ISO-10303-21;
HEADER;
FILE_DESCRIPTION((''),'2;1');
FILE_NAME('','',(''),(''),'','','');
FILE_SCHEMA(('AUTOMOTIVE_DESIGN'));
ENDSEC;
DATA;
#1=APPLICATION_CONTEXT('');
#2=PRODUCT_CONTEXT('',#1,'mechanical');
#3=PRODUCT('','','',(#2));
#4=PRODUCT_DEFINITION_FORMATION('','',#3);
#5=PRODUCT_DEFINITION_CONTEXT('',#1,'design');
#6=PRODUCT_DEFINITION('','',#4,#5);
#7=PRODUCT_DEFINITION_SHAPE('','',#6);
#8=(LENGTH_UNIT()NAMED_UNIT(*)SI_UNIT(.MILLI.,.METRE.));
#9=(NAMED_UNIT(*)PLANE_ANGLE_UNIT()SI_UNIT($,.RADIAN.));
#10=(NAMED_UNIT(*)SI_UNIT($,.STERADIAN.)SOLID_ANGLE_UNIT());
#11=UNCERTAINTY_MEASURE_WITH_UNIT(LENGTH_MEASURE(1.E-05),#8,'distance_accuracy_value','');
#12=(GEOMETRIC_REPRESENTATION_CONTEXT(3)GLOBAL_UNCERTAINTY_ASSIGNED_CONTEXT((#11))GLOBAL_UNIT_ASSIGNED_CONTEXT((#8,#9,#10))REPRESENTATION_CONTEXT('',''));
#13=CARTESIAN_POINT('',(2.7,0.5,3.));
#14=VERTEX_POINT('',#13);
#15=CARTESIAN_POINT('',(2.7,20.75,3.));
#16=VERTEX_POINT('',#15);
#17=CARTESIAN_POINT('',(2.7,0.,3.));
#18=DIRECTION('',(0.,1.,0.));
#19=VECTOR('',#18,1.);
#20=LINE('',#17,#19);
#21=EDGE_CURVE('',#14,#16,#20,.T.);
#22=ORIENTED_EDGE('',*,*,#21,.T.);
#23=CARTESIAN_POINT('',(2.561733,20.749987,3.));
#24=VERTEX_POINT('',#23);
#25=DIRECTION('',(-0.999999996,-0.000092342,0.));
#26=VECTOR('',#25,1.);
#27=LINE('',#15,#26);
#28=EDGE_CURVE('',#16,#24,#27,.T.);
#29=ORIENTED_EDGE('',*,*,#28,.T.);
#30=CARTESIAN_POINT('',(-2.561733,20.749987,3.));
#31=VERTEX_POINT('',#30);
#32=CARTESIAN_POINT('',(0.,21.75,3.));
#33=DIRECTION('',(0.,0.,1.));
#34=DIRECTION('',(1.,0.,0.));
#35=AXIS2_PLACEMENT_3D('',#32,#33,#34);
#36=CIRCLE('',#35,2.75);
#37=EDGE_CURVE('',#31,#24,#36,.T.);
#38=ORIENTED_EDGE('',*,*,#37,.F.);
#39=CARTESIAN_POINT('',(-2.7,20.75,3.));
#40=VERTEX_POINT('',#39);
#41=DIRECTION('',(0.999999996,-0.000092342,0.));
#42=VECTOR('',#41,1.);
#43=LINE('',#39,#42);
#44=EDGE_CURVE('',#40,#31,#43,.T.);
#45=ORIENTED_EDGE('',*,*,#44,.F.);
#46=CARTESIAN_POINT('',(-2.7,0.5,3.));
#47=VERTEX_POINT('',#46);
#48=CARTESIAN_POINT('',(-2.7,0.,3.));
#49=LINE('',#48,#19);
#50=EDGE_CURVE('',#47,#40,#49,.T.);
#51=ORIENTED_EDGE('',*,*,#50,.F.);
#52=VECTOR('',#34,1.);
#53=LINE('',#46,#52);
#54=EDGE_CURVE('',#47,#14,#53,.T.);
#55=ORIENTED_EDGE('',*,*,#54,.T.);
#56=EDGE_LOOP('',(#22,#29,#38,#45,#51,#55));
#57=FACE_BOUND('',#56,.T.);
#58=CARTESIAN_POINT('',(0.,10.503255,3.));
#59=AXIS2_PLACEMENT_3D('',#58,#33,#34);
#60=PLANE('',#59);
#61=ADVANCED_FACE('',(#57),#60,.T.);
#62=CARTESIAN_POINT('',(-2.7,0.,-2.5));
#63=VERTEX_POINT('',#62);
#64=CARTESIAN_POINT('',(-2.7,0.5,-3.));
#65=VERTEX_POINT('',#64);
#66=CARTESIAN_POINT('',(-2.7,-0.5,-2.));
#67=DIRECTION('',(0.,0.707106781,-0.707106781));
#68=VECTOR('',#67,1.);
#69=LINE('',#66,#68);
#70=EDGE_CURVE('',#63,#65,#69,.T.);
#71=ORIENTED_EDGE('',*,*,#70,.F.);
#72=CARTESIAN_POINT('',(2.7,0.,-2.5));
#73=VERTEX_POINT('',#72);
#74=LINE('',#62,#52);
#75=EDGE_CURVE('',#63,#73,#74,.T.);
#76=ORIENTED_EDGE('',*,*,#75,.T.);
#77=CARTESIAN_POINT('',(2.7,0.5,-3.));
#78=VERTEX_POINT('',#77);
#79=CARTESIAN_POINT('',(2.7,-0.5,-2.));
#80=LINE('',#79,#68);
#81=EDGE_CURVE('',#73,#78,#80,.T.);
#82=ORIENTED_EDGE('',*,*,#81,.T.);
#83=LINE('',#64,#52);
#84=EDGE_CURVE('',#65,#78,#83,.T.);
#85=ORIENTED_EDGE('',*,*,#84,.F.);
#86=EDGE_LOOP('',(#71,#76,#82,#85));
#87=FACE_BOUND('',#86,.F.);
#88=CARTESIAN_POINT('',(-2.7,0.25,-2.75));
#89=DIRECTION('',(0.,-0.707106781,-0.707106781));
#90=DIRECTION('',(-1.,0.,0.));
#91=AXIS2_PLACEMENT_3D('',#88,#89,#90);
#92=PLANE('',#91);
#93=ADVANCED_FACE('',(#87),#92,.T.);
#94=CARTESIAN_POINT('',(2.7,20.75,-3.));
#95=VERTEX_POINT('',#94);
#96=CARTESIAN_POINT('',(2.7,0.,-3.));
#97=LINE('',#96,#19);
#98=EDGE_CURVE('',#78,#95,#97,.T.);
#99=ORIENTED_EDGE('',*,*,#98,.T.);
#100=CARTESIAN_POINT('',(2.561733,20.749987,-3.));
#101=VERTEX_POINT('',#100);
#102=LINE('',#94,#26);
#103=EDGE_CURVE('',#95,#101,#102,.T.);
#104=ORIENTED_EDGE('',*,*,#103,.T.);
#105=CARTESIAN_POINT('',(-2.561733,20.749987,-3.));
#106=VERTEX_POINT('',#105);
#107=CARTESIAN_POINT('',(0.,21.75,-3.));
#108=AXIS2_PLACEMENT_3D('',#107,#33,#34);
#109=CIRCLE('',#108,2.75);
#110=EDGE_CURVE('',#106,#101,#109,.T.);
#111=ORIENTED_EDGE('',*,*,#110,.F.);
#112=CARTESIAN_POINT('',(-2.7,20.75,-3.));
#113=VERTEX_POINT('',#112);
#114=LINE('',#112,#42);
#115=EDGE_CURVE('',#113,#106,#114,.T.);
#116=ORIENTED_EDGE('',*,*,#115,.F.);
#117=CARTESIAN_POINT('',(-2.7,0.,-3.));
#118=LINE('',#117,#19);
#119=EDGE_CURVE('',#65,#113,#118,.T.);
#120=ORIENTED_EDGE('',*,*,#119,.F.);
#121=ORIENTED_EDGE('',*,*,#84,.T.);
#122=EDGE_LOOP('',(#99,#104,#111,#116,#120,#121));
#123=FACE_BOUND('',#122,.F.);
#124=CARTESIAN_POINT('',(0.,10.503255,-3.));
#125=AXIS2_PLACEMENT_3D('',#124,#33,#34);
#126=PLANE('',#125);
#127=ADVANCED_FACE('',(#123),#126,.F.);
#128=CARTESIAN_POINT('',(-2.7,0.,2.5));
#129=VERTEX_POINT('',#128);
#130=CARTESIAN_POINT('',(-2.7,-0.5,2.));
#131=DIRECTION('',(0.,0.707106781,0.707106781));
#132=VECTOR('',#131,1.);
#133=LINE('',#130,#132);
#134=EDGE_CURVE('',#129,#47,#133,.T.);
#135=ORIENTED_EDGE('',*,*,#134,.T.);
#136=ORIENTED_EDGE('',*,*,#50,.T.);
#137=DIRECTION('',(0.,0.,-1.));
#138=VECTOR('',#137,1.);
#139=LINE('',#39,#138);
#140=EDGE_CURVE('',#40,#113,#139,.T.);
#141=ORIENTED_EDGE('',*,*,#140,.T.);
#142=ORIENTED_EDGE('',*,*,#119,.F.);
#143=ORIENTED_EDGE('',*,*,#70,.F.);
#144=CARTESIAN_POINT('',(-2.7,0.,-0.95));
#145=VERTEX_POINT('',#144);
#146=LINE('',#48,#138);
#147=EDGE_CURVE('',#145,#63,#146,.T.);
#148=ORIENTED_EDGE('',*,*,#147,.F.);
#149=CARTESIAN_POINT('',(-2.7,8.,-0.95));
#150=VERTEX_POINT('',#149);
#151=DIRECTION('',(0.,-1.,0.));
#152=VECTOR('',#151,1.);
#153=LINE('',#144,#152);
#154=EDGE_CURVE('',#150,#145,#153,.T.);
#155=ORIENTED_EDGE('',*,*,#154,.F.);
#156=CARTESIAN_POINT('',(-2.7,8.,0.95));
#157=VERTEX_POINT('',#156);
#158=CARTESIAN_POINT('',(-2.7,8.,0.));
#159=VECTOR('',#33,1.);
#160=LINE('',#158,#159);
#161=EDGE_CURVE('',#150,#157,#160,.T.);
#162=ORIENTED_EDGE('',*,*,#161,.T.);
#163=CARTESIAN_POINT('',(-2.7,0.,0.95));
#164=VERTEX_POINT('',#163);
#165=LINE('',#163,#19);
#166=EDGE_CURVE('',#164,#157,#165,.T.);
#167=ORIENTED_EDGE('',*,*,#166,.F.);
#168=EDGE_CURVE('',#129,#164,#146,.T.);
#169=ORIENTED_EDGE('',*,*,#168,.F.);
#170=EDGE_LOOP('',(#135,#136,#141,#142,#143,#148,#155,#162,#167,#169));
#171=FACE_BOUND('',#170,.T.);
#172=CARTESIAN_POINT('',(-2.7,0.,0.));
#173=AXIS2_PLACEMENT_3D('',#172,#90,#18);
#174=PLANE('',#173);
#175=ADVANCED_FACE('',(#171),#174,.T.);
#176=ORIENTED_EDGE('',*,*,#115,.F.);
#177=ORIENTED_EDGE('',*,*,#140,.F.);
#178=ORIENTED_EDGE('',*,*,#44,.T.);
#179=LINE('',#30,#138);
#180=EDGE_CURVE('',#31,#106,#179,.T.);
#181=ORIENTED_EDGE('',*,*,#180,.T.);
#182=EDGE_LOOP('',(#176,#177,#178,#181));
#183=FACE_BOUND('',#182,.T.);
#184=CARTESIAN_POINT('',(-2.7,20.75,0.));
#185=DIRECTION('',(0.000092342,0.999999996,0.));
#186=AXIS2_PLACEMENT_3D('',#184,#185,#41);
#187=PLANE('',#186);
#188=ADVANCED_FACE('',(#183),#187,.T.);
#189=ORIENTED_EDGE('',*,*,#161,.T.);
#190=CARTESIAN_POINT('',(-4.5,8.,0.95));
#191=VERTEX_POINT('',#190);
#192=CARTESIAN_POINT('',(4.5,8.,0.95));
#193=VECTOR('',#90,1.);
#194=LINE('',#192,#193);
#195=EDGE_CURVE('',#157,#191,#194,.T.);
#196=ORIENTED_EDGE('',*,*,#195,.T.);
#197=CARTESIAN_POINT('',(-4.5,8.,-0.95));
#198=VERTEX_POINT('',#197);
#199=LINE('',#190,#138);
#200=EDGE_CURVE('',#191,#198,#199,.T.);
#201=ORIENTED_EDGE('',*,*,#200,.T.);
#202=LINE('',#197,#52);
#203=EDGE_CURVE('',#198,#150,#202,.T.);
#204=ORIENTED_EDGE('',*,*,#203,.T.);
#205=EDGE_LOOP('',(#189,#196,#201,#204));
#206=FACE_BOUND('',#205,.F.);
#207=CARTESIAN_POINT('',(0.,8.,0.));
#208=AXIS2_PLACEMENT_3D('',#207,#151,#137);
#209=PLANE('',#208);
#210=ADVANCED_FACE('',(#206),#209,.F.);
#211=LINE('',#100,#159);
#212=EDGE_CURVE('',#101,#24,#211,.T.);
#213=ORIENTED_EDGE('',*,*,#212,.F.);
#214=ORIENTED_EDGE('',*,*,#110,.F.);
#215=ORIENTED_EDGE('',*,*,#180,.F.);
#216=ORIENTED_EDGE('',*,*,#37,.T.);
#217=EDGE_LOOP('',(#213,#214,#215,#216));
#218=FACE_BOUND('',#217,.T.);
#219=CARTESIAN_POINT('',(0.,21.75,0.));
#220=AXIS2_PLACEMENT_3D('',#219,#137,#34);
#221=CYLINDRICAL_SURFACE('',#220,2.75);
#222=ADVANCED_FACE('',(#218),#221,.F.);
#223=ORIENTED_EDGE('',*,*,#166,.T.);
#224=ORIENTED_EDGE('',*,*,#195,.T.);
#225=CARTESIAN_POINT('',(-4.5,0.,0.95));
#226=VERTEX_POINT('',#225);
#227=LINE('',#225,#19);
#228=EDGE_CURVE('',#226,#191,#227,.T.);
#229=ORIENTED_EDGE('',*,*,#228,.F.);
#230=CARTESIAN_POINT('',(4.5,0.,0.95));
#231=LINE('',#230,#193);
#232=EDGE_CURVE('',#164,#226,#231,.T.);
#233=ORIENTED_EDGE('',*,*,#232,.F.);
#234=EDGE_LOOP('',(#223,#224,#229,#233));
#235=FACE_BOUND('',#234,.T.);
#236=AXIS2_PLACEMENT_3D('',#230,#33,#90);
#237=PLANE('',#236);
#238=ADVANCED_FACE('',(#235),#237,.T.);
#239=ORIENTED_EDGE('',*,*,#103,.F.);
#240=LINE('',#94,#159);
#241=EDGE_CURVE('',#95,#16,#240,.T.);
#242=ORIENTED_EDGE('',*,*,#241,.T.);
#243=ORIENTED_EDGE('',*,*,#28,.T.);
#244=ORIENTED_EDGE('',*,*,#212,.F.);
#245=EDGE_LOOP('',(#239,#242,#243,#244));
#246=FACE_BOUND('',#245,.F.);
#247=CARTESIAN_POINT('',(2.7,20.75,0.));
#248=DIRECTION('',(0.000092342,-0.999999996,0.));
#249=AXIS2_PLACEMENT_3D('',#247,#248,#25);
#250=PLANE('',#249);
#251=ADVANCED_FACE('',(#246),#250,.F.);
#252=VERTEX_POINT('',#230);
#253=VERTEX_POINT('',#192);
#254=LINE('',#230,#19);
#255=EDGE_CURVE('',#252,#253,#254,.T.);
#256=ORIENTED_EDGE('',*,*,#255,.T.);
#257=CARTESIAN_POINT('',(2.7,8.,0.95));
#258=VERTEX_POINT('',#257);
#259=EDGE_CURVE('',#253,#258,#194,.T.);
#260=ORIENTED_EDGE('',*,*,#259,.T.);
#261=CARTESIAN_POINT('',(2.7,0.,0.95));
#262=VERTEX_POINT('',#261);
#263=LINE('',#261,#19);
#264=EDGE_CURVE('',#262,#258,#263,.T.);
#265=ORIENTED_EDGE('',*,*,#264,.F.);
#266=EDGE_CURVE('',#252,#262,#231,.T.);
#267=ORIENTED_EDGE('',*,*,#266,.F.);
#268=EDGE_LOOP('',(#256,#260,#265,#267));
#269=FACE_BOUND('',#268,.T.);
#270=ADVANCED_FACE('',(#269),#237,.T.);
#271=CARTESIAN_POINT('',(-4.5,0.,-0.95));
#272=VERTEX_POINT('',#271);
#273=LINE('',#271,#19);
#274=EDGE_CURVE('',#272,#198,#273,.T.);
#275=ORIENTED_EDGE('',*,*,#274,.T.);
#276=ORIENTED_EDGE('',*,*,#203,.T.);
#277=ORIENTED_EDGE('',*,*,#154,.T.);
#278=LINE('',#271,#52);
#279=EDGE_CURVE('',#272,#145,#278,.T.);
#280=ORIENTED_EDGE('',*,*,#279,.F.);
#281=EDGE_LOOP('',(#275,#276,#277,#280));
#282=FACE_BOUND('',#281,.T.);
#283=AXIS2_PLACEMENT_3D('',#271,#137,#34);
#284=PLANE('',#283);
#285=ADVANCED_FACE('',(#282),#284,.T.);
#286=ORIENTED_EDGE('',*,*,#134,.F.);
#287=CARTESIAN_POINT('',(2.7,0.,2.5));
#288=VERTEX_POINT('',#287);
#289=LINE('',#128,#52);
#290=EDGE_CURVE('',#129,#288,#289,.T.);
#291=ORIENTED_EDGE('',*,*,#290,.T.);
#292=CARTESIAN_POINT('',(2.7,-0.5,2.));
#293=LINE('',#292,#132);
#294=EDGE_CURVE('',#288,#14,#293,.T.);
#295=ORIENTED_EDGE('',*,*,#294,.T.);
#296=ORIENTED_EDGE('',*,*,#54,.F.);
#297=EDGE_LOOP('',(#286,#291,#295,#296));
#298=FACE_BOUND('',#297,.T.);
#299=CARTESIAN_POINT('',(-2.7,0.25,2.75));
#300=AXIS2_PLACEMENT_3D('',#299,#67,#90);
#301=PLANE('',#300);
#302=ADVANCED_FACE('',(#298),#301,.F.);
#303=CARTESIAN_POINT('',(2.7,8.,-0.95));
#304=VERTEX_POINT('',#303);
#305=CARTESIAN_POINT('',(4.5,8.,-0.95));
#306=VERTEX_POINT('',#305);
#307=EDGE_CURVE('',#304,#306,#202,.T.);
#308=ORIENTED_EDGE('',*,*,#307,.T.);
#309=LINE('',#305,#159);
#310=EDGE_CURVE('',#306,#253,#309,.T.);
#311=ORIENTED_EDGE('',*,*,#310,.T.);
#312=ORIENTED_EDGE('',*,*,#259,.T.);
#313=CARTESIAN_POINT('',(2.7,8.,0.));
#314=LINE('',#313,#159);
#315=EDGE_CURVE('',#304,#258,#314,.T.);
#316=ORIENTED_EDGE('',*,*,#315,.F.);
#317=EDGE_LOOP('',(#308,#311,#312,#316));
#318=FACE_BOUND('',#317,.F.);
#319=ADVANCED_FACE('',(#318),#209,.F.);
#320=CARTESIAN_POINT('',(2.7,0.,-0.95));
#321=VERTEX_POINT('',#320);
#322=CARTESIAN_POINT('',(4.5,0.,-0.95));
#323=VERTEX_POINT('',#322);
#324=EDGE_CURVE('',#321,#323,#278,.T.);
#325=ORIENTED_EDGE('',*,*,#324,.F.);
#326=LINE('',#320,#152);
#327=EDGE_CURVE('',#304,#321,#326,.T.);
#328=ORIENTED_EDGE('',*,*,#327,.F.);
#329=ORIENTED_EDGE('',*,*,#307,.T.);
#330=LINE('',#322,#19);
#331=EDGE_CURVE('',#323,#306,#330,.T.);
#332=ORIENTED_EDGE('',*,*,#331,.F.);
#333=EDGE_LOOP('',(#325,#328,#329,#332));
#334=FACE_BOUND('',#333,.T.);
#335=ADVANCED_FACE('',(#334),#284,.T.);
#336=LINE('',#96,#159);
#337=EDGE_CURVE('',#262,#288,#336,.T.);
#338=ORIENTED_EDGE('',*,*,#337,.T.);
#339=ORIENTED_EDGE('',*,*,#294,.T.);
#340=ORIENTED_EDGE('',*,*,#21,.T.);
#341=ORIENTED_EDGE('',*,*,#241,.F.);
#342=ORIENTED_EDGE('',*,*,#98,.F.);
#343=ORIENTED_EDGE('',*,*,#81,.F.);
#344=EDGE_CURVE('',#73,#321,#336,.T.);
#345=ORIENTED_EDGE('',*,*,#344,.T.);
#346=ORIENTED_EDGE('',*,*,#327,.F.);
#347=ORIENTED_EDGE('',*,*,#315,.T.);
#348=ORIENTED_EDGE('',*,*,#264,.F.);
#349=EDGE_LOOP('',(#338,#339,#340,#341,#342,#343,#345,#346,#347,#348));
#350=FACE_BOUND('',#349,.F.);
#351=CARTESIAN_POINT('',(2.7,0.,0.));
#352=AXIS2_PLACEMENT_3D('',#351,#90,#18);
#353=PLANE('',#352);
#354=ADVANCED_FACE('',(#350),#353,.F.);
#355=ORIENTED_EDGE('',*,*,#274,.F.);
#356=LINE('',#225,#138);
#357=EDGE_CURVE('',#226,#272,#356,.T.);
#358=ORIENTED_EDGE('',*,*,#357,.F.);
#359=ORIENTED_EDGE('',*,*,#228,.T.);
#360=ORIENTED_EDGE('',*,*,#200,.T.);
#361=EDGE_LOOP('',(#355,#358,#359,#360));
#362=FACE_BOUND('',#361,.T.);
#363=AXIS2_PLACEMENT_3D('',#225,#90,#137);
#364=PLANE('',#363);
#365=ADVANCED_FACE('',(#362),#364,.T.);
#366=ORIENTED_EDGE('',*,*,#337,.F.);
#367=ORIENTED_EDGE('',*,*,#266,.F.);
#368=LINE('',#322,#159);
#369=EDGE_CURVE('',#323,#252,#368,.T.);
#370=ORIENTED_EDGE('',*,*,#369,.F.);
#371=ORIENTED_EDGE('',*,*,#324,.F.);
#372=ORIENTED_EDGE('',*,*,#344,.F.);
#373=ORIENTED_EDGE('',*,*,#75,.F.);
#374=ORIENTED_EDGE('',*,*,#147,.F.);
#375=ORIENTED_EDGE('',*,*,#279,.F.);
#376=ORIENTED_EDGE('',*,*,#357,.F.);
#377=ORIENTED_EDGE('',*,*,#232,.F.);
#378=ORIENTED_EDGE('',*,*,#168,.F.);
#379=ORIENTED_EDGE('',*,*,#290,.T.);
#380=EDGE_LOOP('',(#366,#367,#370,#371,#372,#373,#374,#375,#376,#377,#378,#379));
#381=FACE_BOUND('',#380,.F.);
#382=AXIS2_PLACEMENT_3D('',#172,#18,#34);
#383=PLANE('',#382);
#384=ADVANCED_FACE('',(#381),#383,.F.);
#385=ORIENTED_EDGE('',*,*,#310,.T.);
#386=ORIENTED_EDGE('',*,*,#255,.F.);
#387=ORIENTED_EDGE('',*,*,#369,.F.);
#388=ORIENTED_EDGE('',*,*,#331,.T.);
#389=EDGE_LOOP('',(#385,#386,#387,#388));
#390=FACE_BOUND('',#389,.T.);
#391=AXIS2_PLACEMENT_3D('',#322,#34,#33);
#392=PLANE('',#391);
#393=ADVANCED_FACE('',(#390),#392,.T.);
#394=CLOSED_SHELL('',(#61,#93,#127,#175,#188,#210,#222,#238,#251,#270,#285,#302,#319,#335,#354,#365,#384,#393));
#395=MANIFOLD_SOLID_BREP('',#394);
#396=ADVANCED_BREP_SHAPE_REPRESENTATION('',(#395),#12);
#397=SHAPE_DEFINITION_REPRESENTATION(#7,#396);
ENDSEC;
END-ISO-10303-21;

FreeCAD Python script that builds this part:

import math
import FreeCAD as App
import Part
import Sketcher


def edges_at(feature, points):
    """Names of the edges that pass closest to the given points."""
    edges = feature.Shape.Edges
    near = lambda p: min(range(len(edges)), key=lambda i: edges[i].distToShape(Part.Vertex(*p))[0])
    return sorted({f"Edge{near(p) + 1}" for p in points})

doc = App.newDocument("Part")
body = doc.addObject("PartDesign::Body", "Body")

sketch1 = body.newObject("Sketcher::SketchObject", "Sketch")
sketch1.AttachmentSupport = (doc.getObject("XY_Plane"), [""])
sketch1.MapMode = "FlatFace"
sketch1.addGeometry([
    Part.LineSegment(App.Vector(-2.7, 20.75, 0), App.Vector(-2.7, 0, 0)),
    Part.LineSegment(App.Vector(-2.7, 0, 0), App.Vector(2.7, 0, 0)),
    Part.LineSegment(App.Vector(2.7, 0, 0), App.Vector(2.7, 20.75, 0)),
    Part.LineSegment(App.Vector(2.7, 20.75, 0), App.Vector(2.5617, 20.75, 0)),
    Part.ArcOfCircle(Part.Circle(App.Vector(0, 21.75, 0), App.Vector(0, 0, 1), 2.749965), math.radians(-158.676028), math.radians(-21.323972)),
    Part.LineSegment(App.Vector(-2.5617, 20.75, 0), App.Vector(-2.7, 20.75, 0)),
], False)
sketch1.addConstraint([
    Sketcher.Constraint("Coincident", 0, 2, 1, 1),
    Sketcher.Constraint("Coincident", 1, 2, 2, 1),
    Sketcher.Constraint("Coincident", 2, 2, 3, 1),
    Sketcher.Constraint("Coincident", 3, 2, 4, 2),
    Sketcher.Constraint("Coincident", 4, 1, 5, 1),
    Sketcher.Constraint("Coincident", 5, 2, 0, 1),
    Sketcher.Constraint("Vertical", 0),
    Sketcher.Constraint("Horizontal", 1),
    Sketcher.Constraint("Vertical", 2),
    Sketcher.Constraint("Horizontal", 3),
    Sketcher.Constraint("Horizontal", 5),
    Sketcher.Constraint("Symmetric", 0, 2, 1, 2, -1, 1),
    Sketcher.Constraint("Symmetric", 3, 2, 4, 1, -2),
    Sketcher.Constraint("DistanceX", 0, 2, -1, 1, 2.7),
    Sketcher.Constraint("Radius", 4, 2.75),
    Sketcher.Constraint("DistanceY", 2, 2, 4, 3, 1.0),
    Sketcher.Constraint("DistanceY", 0, 2, 0, 1, 20.75),
])
pad1 = body.newObject("PartDesign::Pad", "Pad")
pad1.Profile = sketch1
pad1.Length = 6
pad1.Midplane = True

sketch2 = body.newObject("Sketcher::SketchObject", "Sketch001")
sketch2.AttachmentSupport = (doc.getObject("XZ_Plane"), [""])
sketch2.MapMode = "FlatFace"
sketch2.addGeometry([
    Part.LineSegment(App.Vector(-4.5, 0.95, 0), App.Vector(-4.5, -0.95, 0)),
    Part.LineSegment(App.Vector(-4.5, -0.95, 0), App.Vector(4.5, -0.95, 0)),
    Part.LineSegment(App.Vector(4.5, -0.95, 0), App.Vector(4.5, 0.95, 0)),
    Part.LineSegment(App.Vector(4.5, 0.95, 0), App.Vector(-4.5, 0.95, 0)),
], False)
sketch2.addConstraint([
    Sketcher.Constraint("Coincident", 0, 2, 1, 1),
    Sketcher.Constraint("Coincident", 1, 2, 2, 1),
    Sketcher.Constraint("Coincident", 2, 2, 3, 1),
    Sketcher.Constraint("Coincident", 3, 2, 0, 1),
    Sketcher.Constraint("Vertical", 0),
    Sketcher.Constraint("Horizontal", 1),
    Sketcher.Constraint("Vertical", 2),
    Sketcher.Constraint("Horizontal", 3),
    Sketcher.Constraint("Symmetric", 0, 2, 2, 2, -1, 1),
    Sketcher.Constraint("DistanceX", 0, 2, -1, 1, 4.5),
    Sketcher.Constraint("DistanceY", 0, 2, 0, 1, 1.9),
])
pad2 = body.newObject("PartDesign::Pad", "Pad001")
pad2.Profile = sketch2
pad2.Length = 8
pad2.Reversed = True
doc.recompute()

chamfer = body.newObject("PartDesign::Chamfer", "Chamfer")
chamfer.Base = (pad2, edges_at(pad2, [(0, 0, 3), (0, 0, -3)]))
chamfer.Size = 0.5

doc.recompute()
